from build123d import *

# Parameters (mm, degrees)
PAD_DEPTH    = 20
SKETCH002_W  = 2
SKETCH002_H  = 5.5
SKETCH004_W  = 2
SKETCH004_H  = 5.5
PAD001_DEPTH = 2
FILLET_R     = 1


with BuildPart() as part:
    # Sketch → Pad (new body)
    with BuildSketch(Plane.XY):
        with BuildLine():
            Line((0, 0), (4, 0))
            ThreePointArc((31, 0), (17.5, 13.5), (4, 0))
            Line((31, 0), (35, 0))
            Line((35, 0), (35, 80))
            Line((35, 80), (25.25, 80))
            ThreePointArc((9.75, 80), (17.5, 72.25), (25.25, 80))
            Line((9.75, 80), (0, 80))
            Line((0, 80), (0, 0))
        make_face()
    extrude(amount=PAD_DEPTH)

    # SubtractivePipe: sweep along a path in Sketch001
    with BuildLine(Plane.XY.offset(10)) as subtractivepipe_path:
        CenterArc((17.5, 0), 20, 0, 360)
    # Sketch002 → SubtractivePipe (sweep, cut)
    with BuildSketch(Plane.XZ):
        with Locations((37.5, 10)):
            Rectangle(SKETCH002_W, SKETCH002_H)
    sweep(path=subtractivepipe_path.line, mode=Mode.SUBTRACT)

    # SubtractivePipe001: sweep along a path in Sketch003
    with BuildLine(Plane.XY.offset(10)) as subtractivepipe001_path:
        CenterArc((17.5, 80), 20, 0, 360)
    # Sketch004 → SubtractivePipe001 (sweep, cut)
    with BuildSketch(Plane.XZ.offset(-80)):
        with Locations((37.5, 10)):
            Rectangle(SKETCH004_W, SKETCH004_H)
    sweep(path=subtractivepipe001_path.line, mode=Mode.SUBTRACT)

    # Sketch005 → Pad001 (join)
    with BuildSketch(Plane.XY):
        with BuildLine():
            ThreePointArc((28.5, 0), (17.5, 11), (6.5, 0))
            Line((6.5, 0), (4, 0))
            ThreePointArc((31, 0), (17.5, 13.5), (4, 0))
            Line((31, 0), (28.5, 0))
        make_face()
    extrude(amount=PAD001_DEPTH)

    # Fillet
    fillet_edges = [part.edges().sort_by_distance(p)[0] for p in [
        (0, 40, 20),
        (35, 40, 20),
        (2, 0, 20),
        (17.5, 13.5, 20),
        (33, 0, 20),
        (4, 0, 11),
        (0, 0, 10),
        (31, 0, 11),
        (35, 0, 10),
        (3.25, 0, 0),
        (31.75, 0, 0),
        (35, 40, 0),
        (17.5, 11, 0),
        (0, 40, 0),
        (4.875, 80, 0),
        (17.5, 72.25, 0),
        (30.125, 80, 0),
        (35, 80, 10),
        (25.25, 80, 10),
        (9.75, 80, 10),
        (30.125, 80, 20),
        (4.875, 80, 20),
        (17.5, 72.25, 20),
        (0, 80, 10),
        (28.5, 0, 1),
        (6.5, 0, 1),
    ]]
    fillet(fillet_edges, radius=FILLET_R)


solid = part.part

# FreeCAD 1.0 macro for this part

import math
import FreeCAD as App
import Part
import Sketcher
from FreeCAD import Vector
Q = App.Units.Quantity


def edges_at(feature, points):
    """Names of the edges that pass closest to the given points."""
    edges = feature.Shape.Edges
    near = lambda p: min(range(len(edges)), key=lambda i: edges[i].distToShape(Part.Vertex(*p))[0])
    return sorted({f"Edge{near(p) + 1}" for p in points})

doc = App.newDocument("Part")
body = doc.addObject("PartDesign::Body", "Body")

# Sketch on XY plane
sketch1 = doc.addObject("Sketcher::SketchObject", "Sketch")
body.addObject(sketch1)
sketch1.AttachmentSupport = (doc.XY_Plane, [""])
sketch1.MapMode = "FlatFace"
sketch1.addGeometry(Part.LineSegment(Vector(0, 0, 0), Vector(4, 0, 0)), False)
sketch1.addGeometry(Part.ArcOfCircle(Part.Circle(Vector(17.5, 0, 0), Vector(0, 0, 1), 13.5), math.radians(0), math.radians(180)), False)
sketch1.addGeometry(Part.LineSegment(Vector(31, 0, 0), Vector(35, 0, 0)), False)
sketch1.addGeometry(Part.LineSegment(Vector(35, 0, 0), Vector(35, 80, 0)), False)
sketch1.addGeometry(Part.LineSegment(Vector(35, 80, 0), Vector(25.25, 80, 0)), False)
sketch1.addGeometry(Part.ArcOfCircle(Part.Circle(Vector(17.5, 80, 0), Vector(0, 0, 1), 7.75), math.radians(180), math.radians(360)), False)
sketch1.addGeometry(Part.LineSegment(Vector(9.75, 80, 0), Vector(0, 80, 0)), False)
sketch1.addGeometry(Part.LineSegment(Vector(0, 80, 0), Vector(0, 0, 0)), False)
sketch1.addConstraint(Sketcher.Constraint("Coincident", 0, 2, 1, 2))
sketch1.addConstraint(Sketcher.Constraint("Coincident", 1, 1, 2, 1))
sketch1.addConstraint(Sketcher.Constraint("Coincident", 2, 2, 3, 1))
sketch1.addConstraint(Sketcher.Constraint("Coincident", 3, 2, 4, 1))
sketch1.addConstraint(Sketcher.Constraint("Coincident", 4, 2, 5, 2))
sketch1.addConstraint(Sketcher.Constraint("Coincident", 5, 1, 6, 1))
sketch1.addConstraint(Sketcher.Constraint("Coincident", 6, 2, 7, 1))
sketch1.addConstraint(Sketcher.Constraint("Coincident", 7, 2, 0, 1))
sketch1.addConstraint(Sketcher.Constraint("Horizontal", 0))
sketch1.addConstraint(Sketcher.Constraint("Horizontal", 2))
sketch1.addConstraint(Sketcher.Constraint("Vertical", 3))
sketch1.addConstraint(Sketcher.Constraint("Horizontal", 4))
sketch1.addConstraint(Sketcher.Constraint("Horizontal", 6))
sketch1.addConstraint(Sketcher.Constraint("Vertical", 7))
sketch1.addConstraint(Sketcher.Constraint("Coincident", 7, 2, -1, 1))
sketch1.addConstraint(Sketcher.Constraint("PointOnObject", 1, 3, -1))
sketch1.addConstraint(Sketcher.Constraint("PointOnObject", 1, 1, -1))
sketch1.addConstraint(Sketcher.Constraint("Horizontal", 5, 3, 3, 2))
sketch1.addConstraint(Sketcher.Constraint("Horizontal", 4, 2, 5, 1))
sketch1.addConstraint(Sketcher.Constraint("Vertical", 1, 3, 5, 3))
sketch1.addConstraint(Sketcher.Constraint("Equal", 0, 2))
sketch1.addConstraint(Sketcher.Constraint("Radius", 1, Q("13.5 mm")))
sketch1.addConstraint(Sketcher.Constraint("DistanceX", 0, 1, 0, 2, Q("4 mm")))
sketch1.addConstraint(Sketcher.Constraint("DistanceY", 3, 1, 3, 2, Q("80 mm")))
sketch1.addConstraint(Sketcher.Constraint("Radius", 5, Q("7.75 mm")))
pad1 = doc.addObject("PartDesign::Pad", "Pad")
body.addObject(pad1)
pad1.Profile = sketch1
pad1.Length = 20

# Sketch on XZ plane
sketch2 = doc.addObject("Sketcher::SketchObject", "Sketch001")
body.addObject(sketch2)
sketch2.AttachmentSupport = (doc.XZ_Plane, [""])
sketch2.MapMode = "FlatFace"
sketch2.addGeometry(Part.LineSegment(Vector(36.5, 12.75, 0), Vector(36.5, 7.25, 0)), False)
sketch2.addGeometry(Part.LineSegment(Vector(36.5, 7.25, 0), Vector(38.5, 7.25, 0)), False)
sketch2.addGeometry(Part.LineSegment(Vector(38.5, 7.25, 0), Vector(38.5, 12.75, 0)), False)
sketch2.addGeometry(Part.LineSegment(Vector(38.5, 12.75, 0), Vector(36.5, 12.75, 0)), False)
sketch2.addConstraint(Sketcher.Constraint("Coincident", 0, 2, 1, 1))
sketch2.addConstraint(Sketcher.Constraint("Coincident", 1, 2, 2, 1))
sketch2.addConstraint(Sketcher.Constraint("Coincident", 2, 2, 3, 1))
sketch2.addConstraint(Sketcher.Constraint("Coincident", 3, 2, 0, 1))
sketch2.addConstraint(Sketcher.Constraint("Vertical", 0))
sketch2.addConstraint(Sketcher.Constraint("Horizontal", 1))
sketch2.addConstraint(Sketcher.Constraint("Vertical", 2))
sketch2.addConstraint(Sketcher.Constraint("Horizontal", 3))
sketch2.addConstraint(Sketcher.Constraint("DistanceX", 1, 1, 1, 2, Q("2 mm")))
sketch2.addConstraint(Sketcher.Constraint("DistanceY", 0, 2, 0, 1, Q("5.5 mm")))
sketch2.addConstraint(Sketcher.Constraint("DistanceX", -1, 1, 0, 2, Q("36.5 mm")))
sketch2.addConstraint(Sketcher.Constraint("DistanceY", -1, 1, 0, 2, Q("7.25 mm")))

# Sketch on XY plane
sketch3 = doc.addObject("Sketcher::SketchObject", "Sketch002")
body.addObject(sketch3)
sketch3.AttachmentSupport = (doc.XY_Plane, [""])
sketch3.MapMode = "FlatFace"
sketch3.AttachmentOffset = App.Placement(Vector(0, 0, 10), App.Rotation())
sketch3.addGeometry(Part.Circle(Vector(17.5, 0, 0), Vector(0, 0, 1), 20), False)
sketch3.addConstraint(Sketcher.Constraint("PointOnObject", 0, 3, -1))
sketch3.addConstraint(Sketcher.Constraint("Diameter", 0, Q("40 mm")))
sketch3.addConstraint(Sketcher.Constraint("DistanceX", -1, 1, 0, 3, Q("17.5 mm")))
doc.recompute()

subtractivepipe = doc.addObject("PartDesign::SubtractivePipe", "SubtractivePipe")
body.addObject(subtractivepipe)
subtractivepipe.Profile = sketch2
subtractivepipe.Spine = (sketch3, ["Edge1"])

# Sketch on XZ plane
sketch4 = doc.addObject("Sketcher::SketchObject", "Sketch003")
body.addObject(sketch4)
sketch4.AttachmentSupport = (doc.XZ_Plane, [""])
sketch4.MapMode = "FlatFace"
sketch4.AttachmentOffset = App.Placement(Vector(0, 0, -80), App.Rotation())
sketch4.addGeometry(Part.LineSegment(Vector(36.5, 12.75, 0), Vector(36.5, 7.25, 0)), False)
sketch4.addGeometry(Part.LineSegment(Vector(36.5, 7.25, 0), Vector(38.5, 7.25, 0)), False)
sketch4.addGeometry(Part.LineSegment(Vector(38.5, 7.25, 0), Vector(38.5, 12.75, 0)), False)
sketch4.addGeometry(Part.LineSegment(Vector(38.5, 12.75, 0), Vector(36.5, 12.75, 0)), False)
sketch4.addConstraint(Sketcher.Constraint("Coincident", 0, 2, 1, 1))
sketch4.addConstraint(Sketcher.Constraint("Coincident", 1, 2, 2, 1))
sketch4.addConstraint(Sketcher.Constraint("Coincident", 2, 2, 3, 1))
sketch4.addConstraint(Sketcher.Constraint("Coincident", 3, 2, 0, 1))
sketch4.addConstraint(Sketcher.Constraint("Vertical", 0))
sketch4.addConstraint(Sketcher.Constraint("Horizontal", 1))
sketch4.addConstraint(Sketcher.Constraint("Vertical", 2))
sketch4.addConstraint(Sketcher.Constraint("Horizontal", 3))
sketch4.addConstraint(Sketcher.Constraint("DistanceX", 1, 1, 1, 2, Q("2 mm")))
sketch4.addConstraint(Sketcher.Constraint("DistanceY", 0, 2, 0, 1, Q("5.5 mm")))
sketch4.addConstraint(Sketcher.Constraint("DistanceX", -1, 1, 0, 2, Q("36.5 mm")))
sketch4.addConstraint(Sketcher.Constraint("DistanceY", -1, 1, 0, 2, Q("7.25 mm")))

# Sketch on XY plane
sketch5 = doc.addObject("Sketcher::SketchObject", "Sketch004")
body.addObject(sketch5)
sketch5.AttachmentSupport = (doc.XY_Plane, [""])
sketch5.MapMode = "FlatFace"
sketch5.AttachmentOffset = App.Placement(Vector(0, 0, 10), App.Rotation())
sketch5.addGeometry(Part.Circle(Vector(17.5, 80, 0), Vector(0, 0, 1), 20), False)
sketch5.addConstraint(Sketcher.Constraint("Diameter", 0, Q("40 mm")))
sketch5.addConstraint(Sketcher.Constraint("DistanceY", -1, 1, 0, 3, Q("80 mm")))
sketch5.addConstraint(Sketcher.Constraint("DistanceX", -1, 1, 0, 3, Q("17.5 mm")))
doc.recompute()

subtractivepipe2 = doc.addObject("PartDesign::SubtractivePipe", "SubtractivePipe001")
body.addObject(subtractivepipe2)
subtractivepipe2.Profile = sketch4
subtractivepipe2.Spine = (sketch5, ["Edge1"])

# Sketch on XY plane
sketch6 = doc.addObject("Sketcher::SketchObject", "Sketch005")
body.addObject(sketch6)
sketch6.AttachmentSupport = (doc.XY_Plane, [""])
sketch6.MapMode = "FlatFace"
sketch6.addGeometry(Part.ArcOfCircle(Part.Circle(Vector(17.5, 0, 0), Vector(0, 0, 1), 11), math.radians(0), math.radians(180)), False)
sketch6.addGeometry(Part.LineSegment(Vector(28.5, 0, 0), Vector(31, 0, 0)), False)
sketch6.addGeometry(Part.ArcOfCircle(Part.Circle(Vector(17.5, 0, 0), Vector(0, 0, 1), 13.5), math.radians(0), math.radians(180)), False)
sketch6.addGeometry(Part.LineSegment(Vector(4, 0, 0), Vector(6.5, 0, 0)), False)
sketch6.addConstraint(Sketcher.Constraint("Coincident", 0, 1, 1, 1))
sketch6.addConstraint(Sketcher.Constraint("Coincident", 1, 2, 2, 1))
sketch6.addConstraint(Sketcher.Constraint("Coincident", 2, 2, 3, 1))
sketch6.addConstraint(Sketcher.Constraint("Coincident", 3, 2, 0, 2))
sketch6.addConstraint(Sketcher.Constraint("Horizontal", 1))
sketch6.addConstraint(Sketcher.Constraint("Horizontal", 3))
sketch6.addConstraint(Sketcher.Constraint("Coincident", 2, 3, 0, 3))
sketch6.addConstraint(Sketcher.Constraint("PointOnObject", 0, 3, -1))
sketch6.addConstraint(Sketcher.Constraint("PointOnObject", 0, 1, -1))
sketch6.addConstraint(Sketcher.Constraint("PointOnObject", 2, 2, -1))
sketch6.addConstraint(Sketcher.Constraint("Radius", 0, Q("11 mm")))
sketch6.addConstraint(Sketcher.Constraint("Radius", 2, Q("13.5 mm")))
sketch6.addConstraint(Sketcher.Constraint("DistanceX", -1, 1, 1, 2, Q("31 mm")))
pad2 = doc.addObject("PartDesign::Pad", "Pad001")
body.addObject(pad2)
pad2.Profile = sketch6
pad2.Length = 2
doc.recompute()

fillet = doc.addObject("PartDesign::Fillet", "Fillet")
body.addObject(fillet)
fillet.Base = (pad2, edges_at(pad2, [
    (0, 40, 20),
    (35, 40, 20),
    (2, 0, 20),
    (17.5, 13.5, 20),
    (33, 0, 20),
    (4, 0, 11),
    (0, 0, 10),
    (31, 0, 11),
    (35, 0, 10),
    (3.25, 0, 0),
    (31.75, 0, 0),
    (35, 40, 0),
    (17.5, 11, 0),
    (0, 40, 0),
    (4.875, 80, 0),
    (17.5, 72.25, 0),
    (30.125, 80, 0),
    (35, 80, 10),
    (25.25, 80, 10),
    (9.75, 80, 10),
    (30.125, 80, 20),
    (4.875, 80, 20),
    (17.5, 72.25, 20),
    (0, 80, 10),
    (28.5, 0, 1),
    (6.5, 0, 1),
]))
fillet.Radius = 1

doc.recompute()
